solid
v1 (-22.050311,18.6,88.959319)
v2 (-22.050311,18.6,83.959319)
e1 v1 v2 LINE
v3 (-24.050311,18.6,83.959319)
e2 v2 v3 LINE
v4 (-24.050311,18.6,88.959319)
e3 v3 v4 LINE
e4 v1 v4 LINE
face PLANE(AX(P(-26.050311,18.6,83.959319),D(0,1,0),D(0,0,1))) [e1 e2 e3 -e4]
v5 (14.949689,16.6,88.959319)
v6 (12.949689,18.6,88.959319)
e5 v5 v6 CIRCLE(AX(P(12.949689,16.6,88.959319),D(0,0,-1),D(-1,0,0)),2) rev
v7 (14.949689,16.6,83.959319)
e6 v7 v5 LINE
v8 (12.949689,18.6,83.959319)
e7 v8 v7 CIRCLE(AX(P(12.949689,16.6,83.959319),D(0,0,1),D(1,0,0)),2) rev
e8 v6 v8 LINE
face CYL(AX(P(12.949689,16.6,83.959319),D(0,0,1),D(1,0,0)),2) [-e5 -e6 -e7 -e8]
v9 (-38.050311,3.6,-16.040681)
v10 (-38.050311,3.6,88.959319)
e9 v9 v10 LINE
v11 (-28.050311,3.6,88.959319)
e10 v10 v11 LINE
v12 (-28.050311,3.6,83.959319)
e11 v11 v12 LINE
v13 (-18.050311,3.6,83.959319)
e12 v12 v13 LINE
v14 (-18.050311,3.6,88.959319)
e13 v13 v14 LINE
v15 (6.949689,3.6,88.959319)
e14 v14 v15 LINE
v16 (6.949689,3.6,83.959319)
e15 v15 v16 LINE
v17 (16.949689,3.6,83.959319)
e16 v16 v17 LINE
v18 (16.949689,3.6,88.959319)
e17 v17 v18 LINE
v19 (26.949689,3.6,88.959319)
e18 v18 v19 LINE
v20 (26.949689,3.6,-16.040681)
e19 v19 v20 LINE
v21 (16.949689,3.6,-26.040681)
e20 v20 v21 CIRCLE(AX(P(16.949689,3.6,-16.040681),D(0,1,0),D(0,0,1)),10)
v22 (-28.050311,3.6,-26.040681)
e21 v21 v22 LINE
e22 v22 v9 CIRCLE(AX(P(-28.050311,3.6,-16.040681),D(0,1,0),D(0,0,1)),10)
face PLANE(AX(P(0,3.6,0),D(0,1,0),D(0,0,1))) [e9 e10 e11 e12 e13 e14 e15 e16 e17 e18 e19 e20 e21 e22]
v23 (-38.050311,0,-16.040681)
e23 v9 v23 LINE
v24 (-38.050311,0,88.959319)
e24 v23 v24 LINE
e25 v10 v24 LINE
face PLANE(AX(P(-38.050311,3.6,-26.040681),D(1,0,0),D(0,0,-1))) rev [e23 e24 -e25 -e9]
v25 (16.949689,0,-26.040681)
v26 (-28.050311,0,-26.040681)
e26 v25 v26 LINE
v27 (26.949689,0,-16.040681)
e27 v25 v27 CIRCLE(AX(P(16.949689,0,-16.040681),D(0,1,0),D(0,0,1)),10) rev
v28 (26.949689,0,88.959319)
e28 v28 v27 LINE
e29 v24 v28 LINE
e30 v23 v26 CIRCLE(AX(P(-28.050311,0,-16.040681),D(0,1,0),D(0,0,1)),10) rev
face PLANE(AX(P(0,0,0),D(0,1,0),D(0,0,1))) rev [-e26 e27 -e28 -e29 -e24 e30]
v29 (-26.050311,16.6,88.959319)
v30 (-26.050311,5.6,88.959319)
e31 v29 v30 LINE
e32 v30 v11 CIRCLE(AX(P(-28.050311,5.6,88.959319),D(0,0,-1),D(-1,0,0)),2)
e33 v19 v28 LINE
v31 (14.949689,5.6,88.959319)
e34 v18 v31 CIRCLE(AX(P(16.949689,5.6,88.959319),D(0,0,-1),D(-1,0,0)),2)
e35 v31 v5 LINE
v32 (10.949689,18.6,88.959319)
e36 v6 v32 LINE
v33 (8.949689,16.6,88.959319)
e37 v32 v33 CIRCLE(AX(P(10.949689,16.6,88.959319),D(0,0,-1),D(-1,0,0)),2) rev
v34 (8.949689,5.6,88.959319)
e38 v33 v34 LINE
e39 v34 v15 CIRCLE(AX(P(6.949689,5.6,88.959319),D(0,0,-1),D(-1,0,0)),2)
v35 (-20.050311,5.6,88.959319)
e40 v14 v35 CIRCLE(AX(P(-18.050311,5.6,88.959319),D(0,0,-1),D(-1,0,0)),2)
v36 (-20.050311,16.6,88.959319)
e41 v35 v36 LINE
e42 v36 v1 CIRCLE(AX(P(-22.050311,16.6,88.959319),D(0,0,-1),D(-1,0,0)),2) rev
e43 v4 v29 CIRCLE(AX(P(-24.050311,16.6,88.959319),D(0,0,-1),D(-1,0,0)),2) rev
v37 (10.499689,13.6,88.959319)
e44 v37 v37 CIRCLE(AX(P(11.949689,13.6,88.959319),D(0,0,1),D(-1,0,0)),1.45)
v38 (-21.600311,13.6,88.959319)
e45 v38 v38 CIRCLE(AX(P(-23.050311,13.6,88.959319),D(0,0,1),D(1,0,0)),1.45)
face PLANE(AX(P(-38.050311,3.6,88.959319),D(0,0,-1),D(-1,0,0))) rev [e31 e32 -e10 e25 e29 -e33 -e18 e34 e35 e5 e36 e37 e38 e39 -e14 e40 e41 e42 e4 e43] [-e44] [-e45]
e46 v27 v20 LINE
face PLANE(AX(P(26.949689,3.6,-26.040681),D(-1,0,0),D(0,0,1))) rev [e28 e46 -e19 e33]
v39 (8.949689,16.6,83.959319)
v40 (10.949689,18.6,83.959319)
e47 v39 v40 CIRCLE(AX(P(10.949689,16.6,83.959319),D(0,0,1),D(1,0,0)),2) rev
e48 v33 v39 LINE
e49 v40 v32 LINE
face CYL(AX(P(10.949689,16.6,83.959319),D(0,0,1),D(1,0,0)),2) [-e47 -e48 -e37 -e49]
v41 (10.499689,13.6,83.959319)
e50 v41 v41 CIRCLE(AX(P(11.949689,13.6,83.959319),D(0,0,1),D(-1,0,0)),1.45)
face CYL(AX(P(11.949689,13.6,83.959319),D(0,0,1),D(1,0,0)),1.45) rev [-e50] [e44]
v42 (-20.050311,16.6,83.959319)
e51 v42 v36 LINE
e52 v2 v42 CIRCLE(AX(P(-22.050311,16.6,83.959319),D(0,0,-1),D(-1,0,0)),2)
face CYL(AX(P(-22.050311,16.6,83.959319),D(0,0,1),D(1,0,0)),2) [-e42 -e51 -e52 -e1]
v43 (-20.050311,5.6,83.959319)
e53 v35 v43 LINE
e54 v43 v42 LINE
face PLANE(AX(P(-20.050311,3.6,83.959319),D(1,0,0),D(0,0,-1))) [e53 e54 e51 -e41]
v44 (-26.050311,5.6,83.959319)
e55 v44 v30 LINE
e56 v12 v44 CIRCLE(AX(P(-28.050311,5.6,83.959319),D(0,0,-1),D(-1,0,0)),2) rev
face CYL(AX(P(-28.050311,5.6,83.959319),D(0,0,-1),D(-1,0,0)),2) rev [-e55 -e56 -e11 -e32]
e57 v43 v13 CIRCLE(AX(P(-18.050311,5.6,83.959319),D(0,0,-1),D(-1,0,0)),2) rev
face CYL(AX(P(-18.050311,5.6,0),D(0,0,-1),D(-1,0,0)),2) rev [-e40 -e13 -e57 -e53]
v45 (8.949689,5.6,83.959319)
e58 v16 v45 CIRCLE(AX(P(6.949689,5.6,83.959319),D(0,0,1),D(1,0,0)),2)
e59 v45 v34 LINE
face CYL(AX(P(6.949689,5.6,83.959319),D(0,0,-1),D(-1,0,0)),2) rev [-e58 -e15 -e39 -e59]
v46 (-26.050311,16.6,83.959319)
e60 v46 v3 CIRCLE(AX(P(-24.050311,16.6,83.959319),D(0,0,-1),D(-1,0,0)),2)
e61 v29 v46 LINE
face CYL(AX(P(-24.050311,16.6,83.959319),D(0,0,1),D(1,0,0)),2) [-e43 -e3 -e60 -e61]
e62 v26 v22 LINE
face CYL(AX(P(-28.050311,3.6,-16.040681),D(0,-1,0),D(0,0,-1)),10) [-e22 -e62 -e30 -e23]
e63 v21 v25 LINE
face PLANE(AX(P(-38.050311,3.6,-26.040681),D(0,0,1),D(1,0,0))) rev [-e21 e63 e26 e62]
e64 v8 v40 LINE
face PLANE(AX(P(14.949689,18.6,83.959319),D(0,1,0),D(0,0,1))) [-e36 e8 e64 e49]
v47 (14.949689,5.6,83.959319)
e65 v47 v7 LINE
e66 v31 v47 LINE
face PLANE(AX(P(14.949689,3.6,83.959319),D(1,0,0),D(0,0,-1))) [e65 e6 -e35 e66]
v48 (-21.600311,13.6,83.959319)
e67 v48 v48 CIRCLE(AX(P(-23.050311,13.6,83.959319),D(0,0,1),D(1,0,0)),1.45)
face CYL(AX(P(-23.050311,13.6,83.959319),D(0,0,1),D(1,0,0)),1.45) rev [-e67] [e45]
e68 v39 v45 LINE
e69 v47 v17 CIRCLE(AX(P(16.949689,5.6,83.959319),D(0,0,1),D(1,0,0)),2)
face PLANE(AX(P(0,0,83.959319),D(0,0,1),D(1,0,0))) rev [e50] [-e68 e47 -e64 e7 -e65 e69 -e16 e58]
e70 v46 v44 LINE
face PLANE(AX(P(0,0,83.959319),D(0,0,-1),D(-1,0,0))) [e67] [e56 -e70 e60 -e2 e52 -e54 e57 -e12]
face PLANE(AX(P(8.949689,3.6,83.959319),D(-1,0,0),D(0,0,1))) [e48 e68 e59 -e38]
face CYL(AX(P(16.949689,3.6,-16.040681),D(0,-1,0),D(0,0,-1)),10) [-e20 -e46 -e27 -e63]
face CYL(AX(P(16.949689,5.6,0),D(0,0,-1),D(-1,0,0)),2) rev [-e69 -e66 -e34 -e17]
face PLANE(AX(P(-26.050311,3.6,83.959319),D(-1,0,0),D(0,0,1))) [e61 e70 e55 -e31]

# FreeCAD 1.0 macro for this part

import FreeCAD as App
import Part
import Sketcher
from FreeCAD import Vector


def edges_at(feature, points):
    """Names of the edges that pass closest to the given points."""
    edges = feature.Shape.Edges
    near = lambda p: min(range(len(edges)), key=lambda i: edges[i].distToShape(Part.Vertex(*p))[0])
    return sorted({f"Edge{near(p) + 1}" for p in points})


def add_polygon(sketch, points):
    """Adds a closed chain of lines whose ends are joined by coincident constraints."""
    first, n = sketch.GeometryCount, len(points)
    for a, b in zip(points, points[1:] + points[:1]):
        sketch.addGeometry(Part.LineSegment(App.Vector(*a, 0), App.Vector(*b, 0)), False)
    for i in range(n):
        sketch.addConstraint(Sketcher.Constraint("Coincident", first + i, 2, first + (i + 1) % n, 1))

doc = App.newDocument("Part")
body = doc.addObject("PartDesign::Body", "Body")

# Sketch on XZ plane
sketch1 = body.newObject("Sketcher::SketchObject", "Sketch")
sketch1.AttachmentSupport = (doc.getObject("XZ_Plane"), [""])
sketch1.MapMode = "FlatFace"
add_polygon(sketch1, [(-38, -26), (-38, 89), (27, 89), (27, -26)])  # lines 0-3
sketch1.addConstraint([
    Sketcher.Constraint("Vertical", 0),
    Sketcher.Constraint("Horizontal", 1),
    Sketcher.Constraint("Vertical", 2),
    Sketcher.Constraint("Horizontal", 3),
    Sketcher.Constraint("DistanceX", 1, 1, 1, 2, 65.0),
    Sketcher.Constraint("DistanceY", 0, 1, 0, 2, 115.0),
    Sketcher.Constraint("DistanceX", 0, 2, -1, 1, 38.050311),
    Sketcher.Constraint("DistanceY", -1, 1, 0, 2, 88.959319),
])
pad1 = body.newObject("PartDesign::Pad", "Pad")
pad1.Profile = sketch1
pad1.Length = 3.6
pad1.Reversed = True

# Sketch on XY plane
sketch2 = body.newObject("Sketcher::SketchObject", "Sketch001")
sketch2.AttachmentSupport = (doc.getObject("XY_Plane"), [""])
sketch2.MapMode = "FlatFace"
sketch2.AttachmentOffset = App.Placement(Vector(0, 0, 88.959319), App.Rotation())
add_polygon(sketch2, [(-26.1, 18.6), (-26.1, 3.6), (-20.1, 3.6), (-20.1, 18.6)])  # lines 0-3
sketch2.addGeometry(Part.Circle(Vector(-23.1, 13.6, 0), Vector(0, 0, 1), 1.4), False)  # 4
add_polygon(sketch2, [(8.9, 18.6), (8.9, 3.6), (14.9, 3.6), (14.9, 18.6)])  # lines 5-8
sketch2.addGeometry(Part.Circle(Vector(11.9, 13.6, 0), Vector(0, 0, 1), 1.4), False)  # 9
sketch2.addConstraint([
    Sketcher.Constraint("Vertical", 0),
    Sketcher.Constraint("Horizontal", 1),
    Sketcher.Constraint("Vertical", 2),
    Sketcher.Constraint("Horizontal", 3),
    Sketcher.Constraint("Vertical", 5),
    Sketcher.Constraint("Horizontal", 6),
    Sketcher.Constraint("Vertical", 7),
    Sketcher.Constraint("Horizontal", 8),
    Sketcher.Constraint("Equal", 4, 9),
    Sketcher.Constraint("Horizontal", 4, 3, 9, 3),
    Sketcher.Constraint("Horizontal", 1, 2, 5, 2),
    Sketcher.Constraint("Horizontal", 3, 2, 7, 2),
    Sketcher.Constraint("Equal", 3, 6),
    Sketcher.Constraint("Diameter", 4, 2.9),
    Sketcher.Constraint("DistanceX", 1, 1, 1, 2, 6.0),
    Sketcher.Constraint("DistanceY", 0, 2, 0, 1, 15.0),
    Sketcher.Constraint("DistanceX", 4, 3, 9, 3, 35.0),
    Sketcher.Constraint("DistanceX", 0, 2, 4, 3, 3.0),
    Sketcher.Constraint("DistanceY", 0, 2, 4, 3, 10.0),
    Sketcher.Constraint("DistanceX", 5, 2, 9, 3, 3.0),
    Sketcher.Constraint("DistanceY", -1, 1, 4, 3, 13.6),
    Sketcher.Constraint("DistanceX", 4, 3, -1, 1, 23.050311),
])
pad2 = body.newObject("PartDesign::Pad", "Pad001")
pad2.Profile = sketch2
pad2.Length = 5
pad2.Reversed = True
doc.recompute()

fillet = body.newObject("PartDesign::Fillet", "Fillet")
fillet.Base = (pad2, edges_at(pad2, [(-38.05, 1.8, -26.041), (26.95, 1.8, -26.041)]))
fillet.Radius = 10
doc.recompute()

fillet2 = body.newObject("PartDesign::Fillet", "Fillet001")
fillet2.Base = (fillet, edges_at(fillet, [
    (-26.05, 3.6, 86.459),
    (-26.05, 18.6, 86.459),
    (-20.05, 18.6, 86.459),
    (-20.05, 3.6, 86.459),
    (14.95, 18.6, 86.459),
    (14.95, 3.6, 86.459),
    (8.95, 3.6, 86.459),
    (8.95, 18.6, 86.459),
]))
fillet2.Radius = 2

doc.recompute()
